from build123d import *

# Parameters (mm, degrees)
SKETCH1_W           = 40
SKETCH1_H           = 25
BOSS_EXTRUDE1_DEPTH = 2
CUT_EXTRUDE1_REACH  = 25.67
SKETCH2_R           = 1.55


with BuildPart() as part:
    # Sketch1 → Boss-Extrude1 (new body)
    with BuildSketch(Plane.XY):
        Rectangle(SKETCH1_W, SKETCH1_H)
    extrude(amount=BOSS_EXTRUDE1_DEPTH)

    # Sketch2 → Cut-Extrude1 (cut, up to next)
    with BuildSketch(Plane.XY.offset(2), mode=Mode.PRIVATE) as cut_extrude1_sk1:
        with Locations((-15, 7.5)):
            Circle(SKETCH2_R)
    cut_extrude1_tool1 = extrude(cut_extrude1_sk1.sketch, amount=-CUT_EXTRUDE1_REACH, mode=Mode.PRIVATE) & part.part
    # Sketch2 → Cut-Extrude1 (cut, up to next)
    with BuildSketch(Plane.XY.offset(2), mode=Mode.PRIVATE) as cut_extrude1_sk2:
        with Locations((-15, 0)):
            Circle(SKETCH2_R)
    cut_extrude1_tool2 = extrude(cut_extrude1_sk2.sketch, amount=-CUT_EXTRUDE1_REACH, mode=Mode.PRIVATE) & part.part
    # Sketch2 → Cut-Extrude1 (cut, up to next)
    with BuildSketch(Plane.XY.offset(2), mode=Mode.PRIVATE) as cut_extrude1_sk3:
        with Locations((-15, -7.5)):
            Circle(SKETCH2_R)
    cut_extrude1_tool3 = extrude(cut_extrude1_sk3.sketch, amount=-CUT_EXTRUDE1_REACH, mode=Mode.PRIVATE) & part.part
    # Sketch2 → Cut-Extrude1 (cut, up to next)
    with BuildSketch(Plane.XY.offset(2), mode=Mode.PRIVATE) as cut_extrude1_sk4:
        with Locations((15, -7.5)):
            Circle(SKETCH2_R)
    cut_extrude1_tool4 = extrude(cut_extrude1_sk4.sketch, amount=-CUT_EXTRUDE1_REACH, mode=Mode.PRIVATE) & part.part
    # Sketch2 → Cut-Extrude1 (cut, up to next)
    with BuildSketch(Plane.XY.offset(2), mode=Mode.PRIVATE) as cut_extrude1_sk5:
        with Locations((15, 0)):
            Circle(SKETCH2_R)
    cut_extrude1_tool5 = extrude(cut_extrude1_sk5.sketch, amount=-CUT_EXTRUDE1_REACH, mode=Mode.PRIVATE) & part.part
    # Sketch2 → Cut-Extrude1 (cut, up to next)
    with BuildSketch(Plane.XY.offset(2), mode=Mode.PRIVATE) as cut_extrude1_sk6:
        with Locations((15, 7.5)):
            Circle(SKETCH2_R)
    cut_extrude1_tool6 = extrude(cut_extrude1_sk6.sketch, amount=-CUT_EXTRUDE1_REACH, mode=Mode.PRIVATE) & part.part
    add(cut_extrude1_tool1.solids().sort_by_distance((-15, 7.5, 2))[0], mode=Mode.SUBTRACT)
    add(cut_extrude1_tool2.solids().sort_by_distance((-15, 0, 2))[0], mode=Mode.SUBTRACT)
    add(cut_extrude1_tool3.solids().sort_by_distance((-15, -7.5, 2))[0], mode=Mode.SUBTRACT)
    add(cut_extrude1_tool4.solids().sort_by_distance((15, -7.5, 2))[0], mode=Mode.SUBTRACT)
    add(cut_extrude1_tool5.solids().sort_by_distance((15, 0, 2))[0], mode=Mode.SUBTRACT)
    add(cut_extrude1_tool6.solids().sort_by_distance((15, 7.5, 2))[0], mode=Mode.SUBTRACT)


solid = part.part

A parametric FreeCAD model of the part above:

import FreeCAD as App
import Part
import Sketcher

V = App.Vector
Q = App.Units.Quantity


def add_polygon(sketch, points):
    """Adds a closed chain of lines whose ends are joined by coincident constraints."""
    first, n = sketch.GeometryCount, len(points)
    for a, b in zip(points, points[1:] + points[:1]):
        sketch.addGeometry(Part.LineSegment(App.Vector(*a, 0), App.Vector(*b, 0)), False)
    for i in range(n):
        sketch.addConstraint(Sketcher.Constraint("Coincident", first + i, 2, first + (i + 1) % n, 1))

doc = App.newDocument("Part")
params = doc.addObject("Spreadsheet::Sheet", "Params")
for row, (alias, value) in enumerate([
    ("sketch1_width", "40 mm"),
    ("sketch1_height", "25 mm"),
    ("pad1_length", "2 mm"),
    ("sketch2_diameter", "3.1 mm"),
    ("sketch3_diameter", "3.1 mm"),
    ("sketch4_diameter", "3.1 mm"),
    ("sketch5_diameter", "3.1 mm"),
    ("sketch6_diameter", "3.1 mm"),
    ("sketch7_diameter", "3.1 mm"),
], start=1):
    params.set(f"A{row}", alias)
    params.set(f"B{row}", "=" + value)
    params.setAlias(f"B{row}", alias)

body = doc.addObject("PartDesign::Body", "Body")

# Sketch on XY plane
sketch1 = body.newObject("Sketcher::SketchObject", "Sketch")
sketch1.AttachmentSupport = (doc.getObject("XY_Plane"), [""])
sketch1.MapMode = "FlatFace"
add_polygon(sketch1, [(-20, 12), (-20, -12), (20, -12), (20, 12)])  # lines 0-3
sketch1.addConstraint([
    Sketcher.Constraint("Vertical", 0),
    Sketcher.Constraint("Horizontal", 1),
    Sketcher.Constraint("Vertical", 2),
    Sketcher.Constraint("Horizontal", 3),
    Sketcher.Constraint("Symmetric", 0, 2, 2, 2, -1, 1),
    Sketcher.Constraint("DistanceX", 1, 1, 1, 2, Q("40 mm")),
    Sketcher.Constraint("DistanceY", 0, 2, 0, 1, Q("25 mm")),
])
sketch1.setExpression("Constraints[9]", "Params.sketch1_width")
sketch1.setExpression("Constraints[10]", "Params.sketch1_height")
pad1 = body.newObject("PartDesign::Pad", "Pad")
pad1.Profile = sketch1
pad1.setExpression("Length", "Params.pad1_length")

# Sketch on XY plane
sketch2 = body.newObject("Sketcher::SketchObject", "Sketch001")
sketch2.AttachmentSupport = (doc.getObject("XY_Plane"), [""])
sketch2.MapMode = "FlatFace"
sketch2.AttachmentOffset = App.Placement(V(0, 0, 2), App.Rotation())
sketch2.addGeometry(Part.Circle(V(-15, 7.5, 0), V(0, 0, 1), 1.6), False)
sketch2.addConstraint([
    Sketcher.Constraint("Diameter", 0, Q("3.1 mm")),
    Sketcher.Constraint("DistanceX", 0, 3, -1, 1, Q("15 mm")),
    Sketcher.Constraint("DistanceY", -1, 1, 0, 3, Q("7.5 mm")),
])
sketch2.setExpression("Constraints[0]", "Params.sketch2_diameter")
pocket1 = body.newObject("PartDesign::Pocket", "Pocket")
pocket1.Profile = sketch2
pocket1.Type = "UpToFirst"

# Sketch on XY plane
sketch3 = body.newObject("Sketcher::SketchObject", "Sketch002")
sketch3.AttachmentSupport = (doc.getObject("XY_Plane"), [""])
sketch3.MapMode = "FlatFace"
sketch3.AttachmentOffset = App.Placement(V(0, 0, 2), App.Rotation())
sketch3.addGeometry(Part.Circle(V(-15, 0, 0), V(0, 0, 1), 1.6), False)
sketch3.addConstraint([
    Sketcher.Constraint("PointOnObject", 0, 3, -1),
    Sketcher.Constraint("Diameter", 0, Q("3.1 mm")),
    Sketcher.Constraint("DistanceX", 0, 3, -1, 1, Q("15 mm")),
])
sketch3.setExpression("Constraints[1]", "Params.sketch3_diameter")
pocket2 = body.newObject("PartDesign::Pocket", "Pocket001")
pocket2.Profile = sketch3
pocket2.Type = "UpToFirst"

# Sketch on XY plane
sketch4 = body.newObject("Sketcher::SketchObject", "Sketch003")
sketch4.AttachmentSupport = (doc.getObject("XY_Plane"), [""])
sketch4.MapMode = "FlatFace"
sketch4.AttachmentOffset = App.Placement(V(0, 0, 2), App.Rotation())
sketch4.addGeometry(Part.Circle(V(-15, -7.5, 0), V(0, 0, 1), 1.6), False)
sketch4.addConstraint([
    Sketcher.Constraint("Diameter", 0, Q("3.1 mm")),
    Sketcher.Constraint("DistanceX", 0, 3, -1, 1, Q("15 mm")),
    Sketcher.Constraint("DistanceY", 0, 3, -1, 1, Q("7.5 mm")),
])
sketch4.setExpression("Constraints[0]", "Params.sketch4_diameter")
pocket3 = body.newObject("PartDesign::Pocket", "Pocket002")
pocket3.Profile = sketch4
pocket3.Type = "UpToFirst"

# Sketch on XY plane
sketch5 = body.newObject("Sketcher::SketchObject", "Sketch004")
sketch5.AttachmentSupport = (doc.getObject("XY_Plane"), [""])
sketch5.MapMode = "FlatFace"
sketch5.AttachmentOffset = App.Placement(V(0, 0, 2), App.Rotation())
sketch5.addGeometry(Part.Circle(V(15, -7.5, 0), V(0, 0, 1), 1.6), False)
sketch5.addConstraint([
    Sketcher.Constraint("Diameter", 0, Q("3.1 mm")),
    Sketcher.Constraint("DistanceX", -1, 1, 0, 3, Q("15 mm")),
    Sketcher.Constraint("DistanceY", 0, 3, -1, 1, Q("7.5 mm")),
])
sketch5.setExpression("Constraints[0]", "Params.sketch5_diameter")
pocket4 = body.newObject("PartDesign::Pocket", "Pocket003")
pocket4.Profile = sketch5
pocket4.Type = "UpToFirst"

# Sketch on XY plane
sketch6 = body.newObject("Sketcher::SketchObject", "Sketch005")
sketch6.AttachmentSupport = (doc.getObject("XY_Plane"), [""])
sketch6.MapMode = "FlatFace"
sketch6.AttachmentOffset = App.Placement(V(0, 0, 2), App.Rotation())
sketch6.addGeometry(Part.Circle(V(15, 0, 0), V(0, 0, 1), 1.6), False)
sketch6.addConstraint([
    Sketcher.Constraint("PointOnObject", 0, 3, -1),
    Sketcher.Constraint("Diameter", 0, Q("3.1 mm")),
    Sketcher.Constraint("DistanceX", -1, 1, 0, 3, Q("15 mm")),
])
sketch6.setExpression("Constraints[1]", "Params.sketch6_diameter")
pocket5 = body.newObject("PartDesign::Pocket", "Pocket004")
pocket5.Profile = sketch6
pocket5.Type = "UpToFirst"

# Sketch on XY plane
sketch7 = body.newObject("Sketcher::SketchObject", "Sketch006")
sketch7.AttachmentSupport = (doc.getObject("XY_Plane"), [""])
sketch7.MapMode = "FlatFace"
sketch7.AttachmentOffset = App.Placement(V(0, 0, 2), App.Rotation())
sketch7.addGeometry(Part.Circle(V(15, 7.5, 0), V(0, 0, 1), 1.6), False)
sketch7.addConstraint([
    Sketcher.Constraint("Diameter", 0, Q("3.1 mm")),
    Sketcher.Constraint("DistanceX", -1, 1, 0, 3, Q("15 mm")),
    Sketcher.Constraint("DistanceY", -1, 1, 0, 3, Q("7.5 mm")),
])
sketch7.setExpression("Constraints[0]", "Params.sketch7_diameter")
pocket6 = body.newObject("PartDesign::Pocket", "Pocket005")
pocket6.Profile = sketch7
pocket6.Type = "UpToFirst"

doc.recompute()
